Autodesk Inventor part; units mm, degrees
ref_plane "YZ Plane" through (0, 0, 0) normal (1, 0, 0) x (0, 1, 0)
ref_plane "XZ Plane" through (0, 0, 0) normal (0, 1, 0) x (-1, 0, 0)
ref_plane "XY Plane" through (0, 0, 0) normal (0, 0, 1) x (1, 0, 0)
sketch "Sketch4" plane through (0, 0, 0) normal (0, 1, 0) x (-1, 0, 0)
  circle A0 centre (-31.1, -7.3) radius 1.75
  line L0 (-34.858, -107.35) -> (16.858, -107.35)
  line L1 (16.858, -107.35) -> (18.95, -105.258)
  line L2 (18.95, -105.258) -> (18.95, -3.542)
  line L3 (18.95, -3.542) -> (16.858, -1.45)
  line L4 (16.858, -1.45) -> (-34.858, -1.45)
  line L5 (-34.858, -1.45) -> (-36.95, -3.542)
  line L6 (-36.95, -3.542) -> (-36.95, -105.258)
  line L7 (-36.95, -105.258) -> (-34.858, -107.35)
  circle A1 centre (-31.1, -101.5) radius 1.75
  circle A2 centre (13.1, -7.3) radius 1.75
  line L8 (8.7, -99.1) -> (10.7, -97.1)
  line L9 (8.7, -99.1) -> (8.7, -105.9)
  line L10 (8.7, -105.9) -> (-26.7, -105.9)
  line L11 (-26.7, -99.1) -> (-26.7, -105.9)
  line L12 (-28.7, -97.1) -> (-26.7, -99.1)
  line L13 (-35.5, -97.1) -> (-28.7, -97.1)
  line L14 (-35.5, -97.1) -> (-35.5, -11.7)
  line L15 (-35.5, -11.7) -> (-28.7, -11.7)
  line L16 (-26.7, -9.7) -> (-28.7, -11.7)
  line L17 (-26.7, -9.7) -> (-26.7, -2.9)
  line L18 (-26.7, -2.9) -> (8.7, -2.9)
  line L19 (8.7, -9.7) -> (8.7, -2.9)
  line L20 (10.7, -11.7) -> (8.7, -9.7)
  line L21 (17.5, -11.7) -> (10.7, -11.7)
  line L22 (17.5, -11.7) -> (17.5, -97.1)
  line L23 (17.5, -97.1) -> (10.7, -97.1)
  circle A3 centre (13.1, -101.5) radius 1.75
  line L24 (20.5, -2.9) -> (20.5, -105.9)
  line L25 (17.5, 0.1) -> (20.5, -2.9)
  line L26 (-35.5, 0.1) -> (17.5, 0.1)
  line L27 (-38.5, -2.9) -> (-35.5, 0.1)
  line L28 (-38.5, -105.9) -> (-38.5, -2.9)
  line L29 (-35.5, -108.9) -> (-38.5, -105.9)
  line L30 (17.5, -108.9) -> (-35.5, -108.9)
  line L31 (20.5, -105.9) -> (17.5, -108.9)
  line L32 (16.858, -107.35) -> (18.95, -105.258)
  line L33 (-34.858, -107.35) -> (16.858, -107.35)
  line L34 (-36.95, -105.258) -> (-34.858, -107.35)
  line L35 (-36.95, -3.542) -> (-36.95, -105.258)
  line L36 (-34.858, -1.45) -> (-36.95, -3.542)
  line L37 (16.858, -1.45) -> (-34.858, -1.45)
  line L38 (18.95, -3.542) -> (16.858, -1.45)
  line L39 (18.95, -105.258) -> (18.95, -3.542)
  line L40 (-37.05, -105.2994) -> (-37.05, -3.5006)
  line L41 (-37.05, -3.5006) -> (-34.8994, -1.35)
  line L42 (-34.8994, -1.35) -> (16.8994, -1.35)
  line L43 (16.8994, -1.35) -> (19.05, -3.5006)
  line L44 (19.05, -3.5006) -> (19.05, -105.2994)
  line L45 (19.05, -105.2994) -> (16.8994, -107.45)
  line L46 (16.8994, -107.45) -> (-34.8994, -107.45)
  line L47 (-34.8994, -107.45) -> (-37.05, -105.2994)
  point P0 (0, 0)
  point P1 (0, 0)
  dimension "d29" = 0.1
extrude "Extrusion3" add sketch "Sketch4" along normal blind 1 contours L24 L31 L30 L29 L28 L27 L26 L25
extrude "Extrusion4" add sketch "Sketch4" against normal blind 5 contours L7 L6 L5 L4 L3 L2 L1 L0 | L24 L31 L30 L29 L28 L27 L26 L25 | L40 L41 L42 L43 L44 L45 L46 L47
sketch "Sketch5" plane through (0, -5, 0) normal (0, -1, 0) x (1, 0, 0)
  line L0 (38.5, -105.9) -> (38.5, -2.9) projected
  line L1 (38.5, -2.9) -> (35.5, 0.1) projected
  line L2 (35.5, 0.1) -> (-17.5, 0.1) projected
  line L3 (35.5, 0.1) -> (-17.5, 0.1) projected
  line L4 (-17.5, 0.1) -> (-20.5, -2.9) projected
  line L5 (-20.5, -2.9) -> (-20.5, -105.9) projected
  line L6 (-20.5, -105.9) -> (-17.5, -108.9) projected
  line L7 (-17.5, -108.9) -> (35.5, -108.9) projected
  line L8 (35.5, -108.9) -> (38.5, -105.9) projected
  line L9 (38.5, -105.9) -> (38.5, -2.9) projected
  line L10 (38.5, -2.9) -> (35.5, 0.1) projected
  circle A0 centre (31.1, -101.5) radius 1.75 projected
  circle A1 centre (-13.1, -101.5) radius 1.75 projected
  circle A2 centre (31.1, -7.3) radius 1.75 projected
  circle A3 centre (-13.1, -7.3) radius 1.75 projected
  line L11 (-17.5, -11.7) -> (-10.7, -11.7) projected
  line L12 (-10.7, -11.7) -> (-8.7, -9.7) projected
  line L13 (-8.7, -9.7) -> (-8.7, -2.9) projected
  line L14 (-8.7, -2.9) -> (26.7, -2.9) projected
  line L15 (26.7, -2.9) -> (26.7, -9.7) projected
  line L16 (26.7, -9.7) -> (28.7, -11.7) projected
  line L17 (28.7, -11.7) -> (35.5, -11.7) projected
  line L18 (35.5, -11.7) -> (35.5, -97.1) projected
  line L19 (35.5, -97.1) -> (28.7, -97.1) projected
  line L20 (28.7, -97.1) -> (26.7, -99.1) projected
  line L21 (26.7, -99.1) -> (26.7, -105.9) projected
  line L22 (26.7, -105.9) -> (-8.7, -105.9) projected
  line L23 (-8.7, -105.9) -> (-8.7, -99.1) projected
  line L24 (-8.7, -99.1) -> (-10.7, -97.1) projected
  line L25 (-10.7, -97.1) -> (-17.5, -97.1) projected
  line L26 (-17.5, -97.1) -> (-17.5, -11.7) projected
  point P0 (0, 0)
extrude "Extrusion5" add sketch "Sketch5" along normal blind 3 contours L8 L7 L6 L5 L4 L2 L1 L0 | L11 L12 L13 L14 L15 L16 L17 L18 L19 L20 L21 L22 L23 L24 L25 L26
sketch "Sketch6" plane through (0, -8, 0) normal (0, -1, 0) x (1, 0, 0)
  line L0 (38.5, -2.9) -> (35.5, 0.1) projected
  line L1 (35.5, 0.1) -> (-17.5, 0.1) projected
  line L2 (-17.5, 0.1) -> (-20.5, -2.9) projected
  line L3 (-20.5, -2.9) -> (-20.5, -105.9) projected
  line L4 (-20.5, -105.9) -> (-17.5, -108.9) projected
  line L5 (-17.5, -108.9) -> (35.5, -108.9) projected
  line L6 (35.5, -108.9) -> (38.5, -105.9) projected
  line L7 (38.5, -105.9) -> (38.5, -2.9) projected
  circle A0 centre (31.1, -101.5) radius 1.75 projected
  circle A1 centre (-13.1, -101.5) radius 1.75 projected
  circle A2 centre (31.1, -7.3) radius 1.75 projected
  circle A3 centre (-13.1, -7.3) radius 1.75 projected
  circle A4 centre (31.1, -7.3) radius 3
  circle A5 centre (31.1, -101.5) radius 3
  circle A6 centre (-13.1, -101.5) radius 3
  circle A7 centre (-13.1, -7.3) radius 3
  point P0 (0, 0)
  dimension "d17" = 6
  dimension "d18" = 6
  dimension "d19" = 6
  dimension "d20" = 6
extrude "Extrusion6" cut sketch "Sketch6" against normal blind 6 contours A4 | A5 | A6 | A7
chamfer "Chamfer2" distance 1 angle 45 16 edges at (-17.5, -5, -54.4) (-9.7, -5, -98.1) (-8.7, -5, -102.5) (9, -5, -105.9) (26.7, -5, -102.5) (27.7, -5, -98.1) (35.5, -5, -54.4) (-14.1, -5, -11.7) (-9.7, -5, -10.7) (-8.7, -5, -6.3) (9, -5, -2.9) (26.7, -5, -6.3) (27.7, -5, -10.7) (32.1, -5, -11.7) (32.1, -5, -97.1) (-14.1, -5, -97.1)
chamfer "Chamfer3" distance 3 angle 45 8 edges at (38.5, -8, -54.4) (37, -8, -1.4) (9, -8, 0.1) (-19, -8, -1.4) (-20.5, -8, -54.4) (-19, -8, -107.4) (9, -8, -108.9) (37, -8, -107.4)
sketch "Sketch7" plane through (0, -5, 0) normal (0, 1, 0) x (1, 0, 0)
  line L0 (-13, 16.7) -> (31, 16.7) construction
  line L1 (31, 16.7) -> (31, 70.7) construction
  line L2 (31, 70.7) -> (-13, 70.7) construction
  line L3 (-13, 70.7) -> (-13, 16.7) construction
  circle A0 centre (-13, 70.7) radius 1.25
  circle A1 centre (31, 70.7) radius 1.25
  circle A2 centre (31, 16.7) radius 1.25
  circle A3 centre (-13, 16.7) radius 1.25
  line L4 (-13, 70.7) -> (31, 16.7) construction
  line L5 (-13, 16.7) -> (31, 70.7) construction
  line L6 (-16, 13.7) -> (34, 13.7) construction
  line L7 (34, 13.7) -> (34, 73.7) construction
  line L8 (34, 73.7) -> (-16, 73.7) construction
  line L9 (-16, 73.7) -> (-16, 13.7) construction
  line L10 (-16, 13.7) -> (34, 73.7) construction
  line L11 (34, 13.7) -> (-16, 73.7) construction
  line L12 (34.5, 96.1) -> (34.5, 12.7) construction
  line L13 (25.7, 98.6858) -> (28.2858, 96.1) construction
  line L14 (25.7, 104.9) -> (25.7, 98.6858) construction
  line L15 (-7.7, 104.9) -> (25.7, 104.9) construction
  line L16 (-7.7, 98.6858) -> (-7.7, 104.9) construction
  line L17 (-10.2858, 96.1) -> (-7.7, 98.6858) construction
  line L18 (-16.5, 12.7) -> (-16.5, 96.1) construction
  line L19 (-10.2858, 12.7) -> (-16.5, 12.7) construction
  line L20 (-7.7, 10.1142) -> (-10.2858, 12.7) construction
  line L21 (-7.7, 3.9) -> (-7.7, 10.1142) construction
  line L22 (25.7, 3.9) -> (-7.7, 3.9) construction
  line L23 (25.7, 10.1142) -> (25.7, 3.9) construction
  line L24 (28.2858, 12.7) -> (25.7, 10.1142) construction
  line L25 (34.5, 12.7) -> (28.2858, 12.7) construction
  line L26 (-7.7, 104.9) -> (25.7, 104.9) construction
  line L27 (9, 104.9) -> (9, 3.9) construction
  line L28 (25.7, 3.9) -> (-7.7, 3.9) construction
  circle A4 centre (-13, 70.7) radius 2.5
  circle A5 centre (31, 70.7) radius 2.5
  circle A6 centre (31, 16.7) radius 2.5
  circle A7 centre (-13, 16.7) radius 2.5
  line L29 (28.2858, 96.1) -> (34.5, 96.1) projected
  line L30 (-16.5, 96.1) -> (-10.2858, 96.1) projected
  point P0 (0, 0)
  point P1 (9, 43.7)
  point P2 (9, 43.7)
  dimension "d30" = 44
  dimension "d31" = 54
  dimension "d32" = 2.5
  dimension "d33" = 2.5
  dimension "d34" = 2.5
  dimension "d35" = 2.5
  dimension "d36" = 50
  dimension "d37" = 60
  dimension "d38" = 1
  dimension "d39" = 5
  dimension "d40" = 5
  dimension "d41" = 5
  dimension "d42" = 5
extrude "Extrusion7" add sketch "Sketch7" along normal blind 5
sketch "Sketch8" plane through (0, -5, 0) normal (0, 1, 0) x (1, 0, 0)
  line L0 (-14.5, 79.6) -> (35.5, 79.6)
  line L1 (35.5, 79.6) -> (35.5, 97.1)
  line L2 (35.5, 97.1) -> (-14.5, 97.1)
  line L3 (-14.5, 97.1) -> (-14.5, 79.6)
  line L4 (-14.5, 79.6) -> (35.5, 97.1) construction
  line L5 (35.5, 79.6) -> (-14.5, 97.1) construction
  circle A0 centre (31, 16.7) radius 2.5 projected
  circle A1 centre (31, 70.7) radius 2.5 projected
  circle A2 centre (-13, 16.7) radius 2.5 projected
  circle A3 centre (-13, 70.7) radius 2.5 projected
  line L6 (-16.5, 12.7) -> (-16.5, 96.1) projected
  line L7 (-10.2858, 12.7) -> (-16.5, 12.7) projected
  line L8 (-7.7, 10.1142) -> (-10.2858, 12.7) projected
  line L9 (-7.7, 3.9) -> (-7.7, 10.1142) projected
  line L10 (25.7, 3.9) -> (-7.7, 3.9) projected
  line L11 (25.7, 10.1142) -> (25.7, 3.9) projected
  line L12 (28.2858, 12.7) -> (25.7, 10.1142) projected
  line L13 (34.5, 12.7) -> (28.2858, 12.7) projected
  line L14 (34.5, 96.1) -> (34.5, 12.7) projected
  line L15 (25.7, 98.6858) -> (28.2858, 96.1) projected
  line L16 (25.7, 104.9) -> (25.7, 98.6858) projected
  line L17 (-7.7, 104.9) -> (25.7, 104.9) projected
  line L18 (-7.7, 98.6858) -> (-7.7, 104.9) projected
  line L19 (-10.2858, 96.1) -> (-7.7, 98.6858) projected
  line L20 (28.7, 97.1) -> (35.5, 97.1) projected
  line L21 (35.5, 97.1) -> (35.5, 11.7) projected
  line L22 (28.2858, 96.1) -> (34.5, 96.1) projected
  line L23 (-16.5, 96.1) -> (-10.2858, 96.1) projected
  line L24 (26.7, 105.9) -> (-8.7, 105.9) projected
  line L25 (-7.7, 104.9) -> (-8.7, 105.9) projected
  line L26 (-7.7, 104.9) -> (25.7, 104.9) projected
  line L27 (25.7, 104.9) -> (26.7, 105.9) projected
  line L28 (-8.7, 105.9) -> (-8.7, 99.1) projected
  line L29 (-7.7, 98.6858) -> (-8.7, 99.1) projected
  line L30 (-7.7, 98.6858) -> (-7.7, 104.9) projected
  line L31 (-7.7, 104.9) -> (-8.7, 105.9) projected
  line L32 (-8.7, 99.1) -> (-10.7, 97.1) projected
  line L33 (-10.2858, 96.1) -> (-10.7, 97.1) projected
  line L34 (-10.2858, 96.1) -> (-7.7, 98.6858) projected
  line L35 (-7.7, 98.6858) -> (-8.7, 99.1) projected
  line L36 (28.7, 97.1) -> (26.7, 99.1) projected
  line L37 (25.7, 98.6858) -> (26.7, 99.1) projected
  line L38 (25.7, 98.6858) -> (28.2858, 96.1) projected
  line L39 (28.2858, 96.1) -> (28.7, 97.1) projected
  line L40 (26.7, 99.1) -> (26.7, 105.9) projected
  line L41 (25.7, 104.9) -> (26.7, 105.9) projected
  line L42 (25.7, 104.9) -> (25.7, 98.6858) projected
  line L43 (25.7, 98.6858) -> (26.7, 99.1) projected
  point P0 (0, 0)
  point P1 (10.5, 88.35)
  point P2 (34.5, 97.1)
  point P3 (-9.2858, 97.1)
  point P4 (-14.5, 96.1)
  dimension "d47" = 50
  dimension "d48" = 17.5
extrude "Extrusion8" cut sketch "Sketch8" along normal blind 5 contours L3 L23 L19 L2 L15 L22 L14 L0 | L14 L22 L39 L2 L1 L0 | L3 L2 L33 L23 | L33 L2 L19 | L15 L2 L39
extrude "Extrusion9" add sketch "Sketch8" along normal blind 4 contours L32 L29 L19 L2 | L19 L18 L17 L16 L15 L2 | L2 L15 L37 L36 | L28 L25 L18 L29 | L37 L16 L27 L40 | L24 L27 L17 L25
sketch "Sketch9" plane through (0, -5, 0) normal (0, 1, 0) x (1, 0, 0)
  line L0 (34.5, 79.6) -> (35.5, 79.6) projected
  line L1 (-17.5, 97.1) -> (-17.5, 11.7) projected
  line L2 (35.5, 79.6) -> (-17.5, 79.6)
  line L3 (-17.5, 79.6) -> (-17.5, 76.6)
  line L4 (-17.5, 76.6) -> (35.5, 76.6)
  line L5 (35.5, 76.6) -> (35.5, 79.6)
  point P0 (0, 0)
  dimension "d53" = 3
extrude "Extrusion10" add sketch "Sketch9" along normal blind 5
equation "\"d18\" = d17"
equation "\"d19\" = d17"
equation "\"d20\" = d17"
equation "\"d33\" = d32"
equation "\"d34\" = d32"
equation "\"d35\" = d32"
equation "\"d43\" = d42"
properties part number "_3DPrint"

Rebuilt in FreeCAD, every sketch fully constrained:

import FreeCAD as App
import Part
import Sketcher
Q = App.Units.Quantity


def edges_at(feature, points):
    """Names of the edges that pass closest to the given points."""
    edges = feature.Shape.Edges
    near = lambda p: min(range(len(edges)), key=lambda i: edges[i].distToShape(Part.Vertex(*p))[0])
    return sorted({f"Edge{near(p) + 1}" for p in points})

doc = App.newDocument("Part")
body = doc.addObject("PartDesign::Body", "Body")

sketch1 = doc.addObject("Sketcher::SketchObject", "Sketch")
body.addObject(sketch1)
sketch1.AttachmentSupport = (doc.XZ_Plane, [""])
sketch1.MapMode = "FlatFace"
sketch1.addGeometry(Part.LineSegment(App.Vector(-20.5, -105.9, 0), App.Vector(-20.5, -2.9, 0)), False)
sketch1.addGeometry(Part.LineSegment(App.Vector(-20.5, -2.9, 0), App.Vector(-17.5, 0.1, 0)), False)
sketch1.addGeometry(Part.LineSegment(App.Vector(-17.5, 0.1, 0), App.Vector(35.5, 0.1, 0)), False)
sketch1.addGeometry(Part.LineSegment(App.Vector(35.5, 0.1, 0), App.Vector(38.5, -2.9, 0)), False)
sketch1.addGeometry(Part.LineSegment(App.Vector(38.5, -2.9, 0), App.Vector(38.5, -105.9, 0)), False)
sketch1.addGeometry(Part.LineSegment(App.Vector(38.5, -105.9, 0), App.Vector(35.5, -108.9, 0)), False)
sketch1.addGeometry(Part.LineSegment(App.Vector(35.5, -108.9, 0), App.Vector(-17.5, -108.9, 0)), False)
sketch1.addGeometry(Part.LineSegment(App.Vector(-17.5, -108.9, 0), App.Vector(-20.5, -105.9, 0)), False)
sketch1.addGeometry(Part.LineSegment(App.Vector(34.9, -107.5, 0), App.Vector(37, -105.3, 0)), False)
sketch1.addGeometry(Part.LineSegment(App.Vector(37, -105.3, 0), App.Vector(37, -3.5, 0)), False)
sketch1.addGeometry(Part.LineSegment(App.Vector(37, -3.5, 0), App.Vector(34.9, -1.4, 0)), False)
sketch1.addGeometry(Part.LineSegment(App.Vector(34.9, -1.4, 0), App.Vector(-16.9, -1.4, 0)), False)
sketch1.addGeometry(Part.LineSegment(App.Vector(-16.9, -1.4, 0), App.Vector(-19.1, -3.5, 0)), False)
sketch1.addGeometry(Part.LineSegment(App.Vector(-19.1, -3.5, 0), App.Vector(-19.1, -105.3, 0)), False)
sketch1.addGeometry(Part.LineSegment(App.Vector(-19.1, -105.3, 0), App.Vector(-16.9, -107.5, 0)), False)
sketch1.addGeometry(Part.LineSegment(App.Vector(-16.9, -107.5, 0), App.Vector(34.9, -107.5, 0)), False)
sketch1.addConstraint(Sketcher.Constraint("Coincident", 0, 2, 1, 1))
sketch1.addConstraint(Sketcher.Constraint("Coincident", 1, 2, 2, 1))
sketch1.addConstraint(Sketcher.Constraint("Coincident", 2, 2, 3, 1))
sketch1.addConstraint(Sketcher.Constraint("Coincident", 3, 2, 4, 1))
sketch1.addConstraint(Sketcher.Constraint("Coincident", 4, 2, 5, 1))
sketch1.addConstraint(Sketcher.Constraint("Coincident", 5, 2, 6, 1))
sketch1.addConstraint(Sketcher.Constraint("Coincident", 6, 2, 7, 1))
sketch1.addConstraint(Sketcher.Constraint("Coincident", 7, 2, 0, 1))
sketch1.addConstraint(Sketcher.Constraint("Coincident", 8, 2, 9, 1))
sketch1.addConstraint(Sketcher.Constraint("Coincident", 9, 2, 10, 1))
sketch1.addConstraint(Sketcher.Constraint("Coincident", 10, 2, 11, 1))
sketch1.addConstraint(Sketcher.Constraint("Coincident", 11, 2, 12, 1))
sketch1.addConstraint(Sketcher.Constraint("Coincident", 12, 2, 13, 1))
sketch1.addConstraint(Sketcher.Constraint("Coincident", 13, 2, 14, 1))
sketch1.addConstraint(Sketcher.Constraint("Coincident", 14, 2, 15, 1))
sketch1.addConstraint(Sketcher.Constraint("Coincident", 15, 2, 8, 1))
sketch1.addConstraint(Sketcher.Constraint("Vertical", 0))
sketch1.addConstraint(Sketcher.Constraint("Horizontal", 2))
sketch1.addConstraint(Sketcher.Constraint("Vertical", 4))
sketch1.addConstraint(Sketcher.Constraint("Horizontal", 6))
sketch1.addConstraint(Sketcher.Constraint("Vertical", 9))
sketch1.addConstraint(Sketcher.Constraint("Horizontal", 11))
sketch1.addConstraint(Sketcher.Constraint("Vertical", 13))
sketch1.addConstraint(Sketcher.Constraint("Horizontal", 15))
sketch1.addConstraint(Sketcher.Constraint("Perpendicular", 1, 3))
sketch1.addConstraint(Sketcher.Constraint("Perpendicular", 3, 5))
sketch1.addConstraint(Sketcher.Constraint("Perpendicular", 5, 7))
sketch1.addConstraint(Sketcher.Constraint("Perpendicular", 7, 8))
sketch1.addConstraint(Sketcher.Constraint("Perpendicular", 8, 10))
sketch1.addConstraint(Sketcher.Constraint("Perpendicular", 10, 12))
sketch1.addConstraint(Sketcher.Constraint("Perpendicular", 12, 14))
sketch1.addConstraint(Sketcher.Constraint("Horizontal", 0, 2, 3, 2))
sketch1.addConstraint(Sketcher.Constraint("Horizontal", 4, 2, 7, 2))
sketch1.addConstraint(Sketcher.Constraint("Horizontal", 9, 2, 12, 2))
sketch1.addConstraint(Sketcher.Constraint("Horizontal", 8, 2, 13, 2))
sketch1.addConstraint(Sketcher.Constraint("Vertical", 2, 2, 5, 2))
sketch1.addConstraint(Sketcher.Constraint("Vertical", 1, 2, 6, 2))
sketch1.addConstraint(Sketcher.Constraint("Vertical", 11, 2, 14, 2))
sketch1.addConstraint(Sketcher.Constraint("DistanceY", -1, 1, 1, 2, Q("0.1 mm")))
sketch1.addConstraint(Sketcher.Constraint("DistanceX", 2, 1, 2, 2, Q("53 mm")))
sketch1.addConstraint(Sketcher.Constraint("DistanceY", 0, 1, 0, 2, Q("103 mm")))
sketch1.addConstraint(Sketcher.Constraint("DistanceX", 0, 2, 1, 2, Q("3 mm")))
sketch1.addConstraint(Sketcher.Constraint("DistanceX", 0, 2, -1, 1, Q("20.5 mm")))
sketch1.addConstraint(Sketcher.Constraint("DistanceX", 13, 2, 8, 2, Q("56.1 mm")))
sketch1.addConstraint(Sketcher.Constraint("DistanceX", -1, 1, 8, 2, Q("37.05 mm")))
sketch1.addConstraint(Sketcher.Constraint("DistanceY", 10, 2, -1, 1, Q("1.35 mm")))
sketch1.addConstraint(Sketcher.Constraint("DistanceY", 14, 2, -1, 1, Q("107.45 mm")))
sketch1.addConstraint(Sketcher.Constraint("DistanceX", 11, 2, 11, 1, Q("51.7988 mm")))
pad1 = doc.addObject("PartDesign::Pad", "Pad")
body.addObject(pad1)
pad1.Profile = sketch1
pad1.Length = 1
pad1.Reversed = True

sketch2 = doc.addObject("Sketcher::SketchObject", "Sketch001")
body.addObject(sketch2)
sketch2.AttachmentSupport = (doc.XZ_Plane, [""])
sketch2.MapMode = "FlatFace"
sketch2.addGeometry(Part.LineSegment(App.Vector(-20.5, -105.9, 0), App.Vector(-20.5, -2.9, 0)), False)
sketch2.addGeometry(Part.LineSegment(App.Vector(-20.5, -2.9, 0), App.Vector(-17.5, 0.1, 0)), False)
sketch2.addGeometry(Part.LineSegment(App.Vector(-17.5, 0.1, 0), App.Vector(35.5, 0.1, 0)), False)
sketch2.addGeometry(Part.LineSegment(App.Vector(35.5, 0.1, 0), App.Vector(38.5, -2.9, 0)), False)
sketch2.addGeometry(Part.LineSegment(App.Vector(38.5, -2.9, 0), App.Vector(38.5, -105.9, 0)), False)
sketch2.addGeometry(Part.LineSegment(App.Vector(38.5, -105.9, 0), App.Vector(35.5, -108.9, 0)), False)
sketch2.addGeometry(Part.LineSegment(App.Vector(35.5, -108.9, 0), App.Vector(-17.5, -108.9, 0)), False)
sketch2.addGeometry(Part.LineSegment(App.Vector(-17.5, -108.9, 0), App.Vector(-20.5, -105.9, 0)), False)
sketch2.addGeometry(Part.Circle(App.Vector(31.1, -101.5, 0), App.Vector(0, 0, 1), 1.8), False)
sketch2.addGeometry(Part.Circle(App.Vector(-13.1, -101.5, 0), App.Vector(0, 0, 1), 1.8), False)
sketch2.addGeometry(Part.Circle(App.Vector(31.1, -7.3, 0), App.Vector(0, 0, 1), 1.8), False)
sketch2.addGeometry(Part.LineSegment(App.Vector(-10.7, -97.1, 0), App.Vector(-8.7, -99.1, 0)), False)
sketch2.addGeometry(Part.LineSegment(App.Vector(-8.7, -99.1, 0), App.Vector(-8.7, -105.9, 0)), False)
sketch2.addGeometry(Part.LineSegment(App.Vector(-8.7, -105.9, 0), App.Vector(26.7, -105.9, 0)), False)
sketch2.addGeometry(Part.LineSegment(App.Vector(26.7, -105.9, 0), App.Vector(26.7, -99.1, 0)), False)
sketch2.addGeometry(Part.LineSegment(App.Vector(26.7, -99.1, 0), App.Vector(28.7, -97.1, 0)), False)
sketch2.addGeometry(Part.LineSegment(App.Vector(28.7, -97.1, 0), App.Vector(35.5, -97.1, 0)), False)
sketch2.addGeometry(Part.LineSegment(App.Vector(35.5, -97.1, 0), App.Vector(35.5, -11.7, 0)), False)
sketch2.addGeometry(Part.LineSegment(App.Vector(35.5, -11.7, 0), App.Vector(28.7, -11.7, 0)), False)
sketch2.addGeometry(Part.LineSegment(App.Vector(28.7, -11.7, 0), App.Vector(26.7, -9.7, 0)), False)
sketch2.addGeometry(Part.LineSegment(App.Vector(26.7, -9.7, 0), App.Vector(26.7, -2.9, 0)), False)
sketch2.addGeometry(Part.LineSegment(App.Vector(26.7, -2.9, 0), App.Vector(-8.7, -2.9, 0)), False)
sketch2.addGeometry(Part.LineSegment(App.Vector(-8.7, -2.9, 0), App.Vector(-8.7, -9.7, 0)), False)
sketch2.addGeometry(Part.LineSegment(App.Vector(-8.7, -9.7, 0), App.Vector(-10.7, -11.7, 0)), False)
sketch2.addGeometry(Part.LineSegment(App.Vector(-10.7, -11.7, 0), App.Vector(-17.5, -11.7, 0)), False)
sketch2.addGeometry(Part.LineSegment(App.Vector(-17.5, -11.7, 0), App.Vector(-17.5, -97.1, 0)), False)
sketch2.addGeometry(Part.LineSegment(App.Vector(-17.5, -97.1, 0), App.Vector(-10.7, -97.1, 0)), False)
sketch2.addGeometry(Part.Circle(App.Vector(-13.1, -7.3, 0), App.Vector(0, 0, 1), 1.8), False)
sketch2.addConstraint(Sketcher.Constraint("Coincident", 0, 2, 1, 1))
sketch2.addConstraint(Sketcher.Constraint("Coincident", 1, 2, 2, 1))
sketch2.addConstraint(Sketcher.Constraint("Coincident", 2, 2, 3, 1))
sketch2.addConstraint(Sketcher.Constraint("Coincident", 3, 2, 4, 1))
sketch2.addConstraint(Sketcher.Constraint("Coincident", 4, 2, 5, 1))
sketch2.addConstraint(Sketcher.Constraint("Coincident", 5, 2, 6, 1))
sketch2.addConstraint(Sketcher.Constraint("Coincident", 6, 2, 7, 1))
sketch2.addConstraint(Sketcher.Constraint("Coincident", 7, 2, 0, 1))
sketch2.addConstraint(Sketcher.Constraint("Coincident", 11, 2, 12, 1))
sketch2.addConstraint(Sketcher.Constraint("Coincident", 12, 2, 13, 1))
sketch2.addConstraint(Sketcher.Constraint("Coincident", 13, 2, 14, 1))
sketch2.addConstraint(Sketcher.Constraint("Coincident", 14, 2, 15, 1))
sketch2.addConstraint(Sketcher.Constraint("Coincident", 15, 2, 16, 1))
sketch2.addConstraint(Sketcher.Constraint("Coincident", 16, 2, 17, 1))
sketch2.addConstraint(Sketcher.Constraint("Coincident", 17, 2, 18, 1))
sketch2.addConstraint(Sketcher.Constraint("Coincident", 18, 2, 19, 1))
sketch2.addConstraint(Sketcher.Constraint("Coincident", 19, 2, 20, 1))
sketch2.addConstraint(Sketcher.Constraint("Coincident", 20, 2, 21, 1))
sketch2.addConstraint(Sketcher.Constraint("Coincident", 21, 2, 22, 1))
sketch2.addConstraint(Sketcher.Constraint("Coincident", 22, 2, 23, 1))
sketch2.addConstraint(Sketcher.Constraint("Coincident", 23, 2, 24, 1))
sketch2.addConstraint(Sketcher.Constraint("Coincident", 24, 2, 25, 1))
sketch2.addConstraint(Sketcher.Constraint("Coincident", 25, 2, 26, 1))
sketch2.addConstraint(Sketcher.Constraint("Coincident", 26, 2, 11, 1))
sketch2.addConstraint(Sketcher.Constraint("Vertical", 0))
sketch2.addConstraint(Sketcher.Constraint("Horizontal", 2))
sketch2.addConstraint(Sketcher.Constraint("Vertical", 4))
sketch2.addConstraint(Sketcher.Constraint("Horizontal", 6))
sketch2.addConstraint(Sketcher.Constraint("Vertical", 12))
sketch2.addConstraint(Sketcher.Constraint("Horizontal", 13))
sketch2.addConstraint(Sketcher.Constraint("Vertical", 14))
sketch2.addConstraint(Sketcher.Constraint("Horizontal", 16))
sketch2.addConstraint(Sketcher.Constraint("Vertical", 17))
sketch2.addConstraint(Sketcher.Constraint("Horizontal", 18))
sketch2.addConstraint(Sketcher.Constraint("Vertical", 20))
sketch2.addConstraint(Sketcher.Constraint("Horizontal", 21))
sketch2.addConstraint(Sketcher.Constraint("Vertical", 22))
sketch2.addConstraint(Sketcher.Constraint("Horizontal", 24))
sketch2.addConstraint(Sketcher.Constraint("Vertical", 25))
sketch2.addConstraint(Sketcher.Constraint("Horizontal", 26))
sketch2.addConstraint(Sketcher.Constraint("Equal", 8, 9))
sketch2.addConstraint(Sketcher.Constraint("Equal", 9, 10))
sketch2.addConstraint(Sketcher.Constraint("Equal", 10, 27))
sketch2.addConstraint(Sketcher.Constraint("Perpendicular", 1, 3))
sketch2.addConstraint(Sketcher.Constraint("Perpendicular", 3, 5))
sketch2.addConstraint(Sketcher.Constraint("Perpendicular", 5, 7))
sketch2.addConstraint(Sketcher.Constraint("Parallel", 7, 11))
sketch2.addConstraint(Sketcher.Constraint("Perpendicular", 11, 15))
sketch2.addConstraint(Sketcher.Constraint("Perpendicular", 15, 19))
sketch2.addConstraint(Sketcher.Constraint("Perpendicular", 19, 23))
sketch2.addConstraint(Sketcher.Constraint("Horizontal", 8, 3, 9, 3))
sketch2.addConstraint(Sketcher.Constraint("Horizontal", 10, 3, 27, 3))
sketch2.addConstraint(Sketcher.Constraint("Horizontal", 0, 2, 3, 2))
sketch2.addConstraint(Sketcher.Constraint("Horizontal", 4, 2, 7, 2))
sketch2.addConstraint(Sketcher.Constraint("Horizontal", 7, 2, 12, 2))
sketch2.addConstraint(Sketcher.Constraint("Horizontal", 11, 2, 14, 2))
sketch2.addConstraint(Sketcher.Constraint("Horizontal", 3, 2, 20, 2))
sketch2.addConstraint(Sketcher.Constraint("Horizontal", 19, 2, 22, 2))
sketch2.addConstraint(Sketcher.Constraint("Horizontal", 18, 2, 23, 2))
sketch2.addConstraint(Sketcher.Constraint("Horizontal", 16, 2, 25, 2))
sketch2.addConstraint(Sketcher.Constraint("Vertical", 8, 3, 10, 3))
sketch2.addConstraint(Sketcher.Constraint("Vertical", 9, 3, 27, 3))
sketch2.addConstraint(Sketcher.Constraint("Vertical", 2, 2, 5, 2))
sketch2.addConstraint(Sketcher.Constraint("Vertical", 1, 2, 6, 2))
sketch2.addConstraint(Sketcher.Constraint("Vertical", 5, 2, 16, 2))
sketch2.addConstraint(Sketcher.Constraint("Vertical", 15, 2, 18, 2))
sketch2.addConstraint(Sketcher.Constraint("Vertical", 14, 2, 19, 2))
sketch2.addConstraint(Sketcher.Constraint("Vertical", 12, 2, 21, 2))
sketch2.addConstraint(Sketcher.Constraint("Vertical", 6, 2, 24, 2))
sketch2.addConstraint(Sketcher.Constraint("Equal", 18, 24))
sketch2.addConstraint(Sketcher.Constraint("Equal", 26, 12))
sketch2.addConstraint(Sketcher.Constraint("Equal", 14, 20))
sketch2.addConstraint(Sketcher.Constraint("Diameter", 8, Q("3.5 mm")))
sketch2.addConstraint(Sketcher.Constraint("DistanceY", -1, 1, 1, 2, Q("0.1 mm")))
sketch2.addConstraint(Sketcher.Constraint("DistanceX", 2, 1, 2, 2, Q("53 mm")))
sketch2.addConstraint(Sketcher.Constraint("DistanceY", 0, 1, 0, 2, Q("103 mm")))
sketch2.addConstraint(Sketcher.Constraint("DistanceX", 13, 1, 13, 2, Q("35.4 mm")))
sketch2.addConstraint(Sketcher.Constraint("DistanceX", 16, 1, 16, 2, Q("6.8 mm")))
sketch2.addConstraint(Sketcher.Constraint("DistanceX", 0, 2, 1, 2, Q("3 mm")))
sketch2.addConstraint(Sketcher.Constraint("DistanceX", -1, 1, 8, 3, Q("31.1 mm")))
sketch2.addConstraint(Sketcher.Constraint("DistanceY", 8, 3, -1, 1, Q("101.5 mm")))
sketch2.addConstraint(Sketcher.Constraint("DistanceX", 9, 3, -1, 1, Q("13.1 mm")))
sketch2.addConstraint(Sketcher.Constraint("DistanceY", 10, 3, -1, 1, Q("7.3 mm")))
sketch2.addConstraint(Sketcher.Constraint("DistanceX", 0, 2, -1, 1, Q("20.5 mm")))
pad2 = doc.addObject("PartDesign::Pad", "Pad001")
body.addObject(pad2)
pad2.Profile = sketch2
pad2.Length = 5

sketch3 = doc.addObject("Sketcher::SketchObject", "Sketch002")
body.addObject(sketch3)
sketch3.AttachmentSupport = (doc.XZ_Plane, [""])
sketch3.MapMode = "FlatFace"
sketch3.AttachmentOffset = App.Placement(App.Vector(0, 0, 5), App.Rotation())
sketch3.addGeometry(Part.LineSegment(App.Vector(35.5, -108.9, 0), App.Vector(38.5, -105.9, 0)), False)
sketch3.addGeometry(Part.LineSegment(App.Vector(38.5, -105.9, 0), App.Vector(38.5, -2.9, 0)), False)
sketch3.addGeometry(Part.LineSegment(App.Vector(38.5, -2.9, 0), App.Vector(35.5, 0.1, 0)), False)
sketch3.addGeometry(Part.LineSegment(App.Vector(35.5, 0.1, 0), App.Vector(-17.5, 0.1, 0)), False)
sketch3.addGeometry(Part.LineSegment(App.Vector(-17.5, 0.1, 0), App.Vector(-20.5, -2.9, 0)), False)
sketch3.addGeometry(Part.LineSegment(App.Vector(-20.5, -2.9, 0), App.Vector(-20.5, -105.9, 0)), False)
sketch3.addGeometry(Part.LineSegment(App.Vector(-20.5, -105.9, 0), App.Vector(-17.5, -108.9, 0)), False)
sketch3.addGeometry(Part.LineSegment(App.Vector(-17.5, -108.9, 0), App.Vector(35.5, -108.9, 0)), False)
sketch3.addGeometry(Part.Circle(App.Vector(-13.1, -101.5, 0), App.Vector(0, 0, 1), 1.8), False)
sketch3.addGeometry(Part.Circle(App.Vector(31.1, -101.5, 0), App.Vector(0, 0, 1), 1.8), False)
sketch3.addGeometry(Part.Circle(App.Vector(-13.1, -7.3, 0), App.Vector(0, 0, 1), 1.8), False)
sketch3.addGeometry(Part.Circle(App.Vector(31.1, -7.3, 0), App.Vector(0, 0, 1), 1.8), False)
sketch3.addConstraint(Sketcher.Constraint("Coincident", 0, 2, 1, 1))
sketch3.addConstraint(Sketcher.Constraint("Coincident", 1, 2, 2, 1))
sketch3.addConstraint(Sketcher.Constraint("Coincident", 2, 2, 3, 1))
sketch3.addConstraint(Sketcher.Constraint("Coincident", 3, 2, 4, 1))
sketch3.addConstraint(Sketcher.Constraint("Coincident", 4, 2, 5, 1))
sketch3.addConstraint(Sketcher.Constraint("Coincident", 5, 2, 6, 1))
sketch3.addConstraint(Sketcher.Constraint("Coincident", 6, 2, 7, 1))
sketch3.addConstraint(Sketcher.Constraint("Coincident", 7, 2, 0, 1))
sketch3.addConstraint(Sketcher.Constraint("Vertical", 1))
sketch3.addConstraint(Sketcher.Constraint("Horizontal", 3))
sketch3.addConstraint(Sketcher.Constraint("Vertical", 5))
sketch3.addConstraint(Sketcher.Constraint("Horizontal", 7))
sketch3.addConstraint(Sketcher.Constraint("Equal", 8, 9))
sketch3.addConstraint(Sketcher.Constraint("Equal", 9, 10))
sketch3.addConstraint(Sketcher.Constraint("Equal", 10, 11))
sketch3.addConstraint(Sketcher.Constraint("Perpendicular", 0, 2))
sketch3.addConstraint(Sketcher.Constraint("Perpendicular", 2, 4))
sketch3.addConstraint(Sketcher.Constraint("Perpendicular", 4, 6))
sketch3.addConstraint(Sketcher.Constraint("Horizontal", 8, 3, 9, 3))
sketch3.addConstraint(Sketcher.Constraint("Horizontal", 10, 3, 11, 3))
sketch3.addConstraint(Sketcher.Constraint("Horizontal", 1, 2, 4, 2))
sketch3.addConstraint(Sketcher.Constraint("Horizontal", 0, 2, 5, 2))
sketch3.addConstraint(Sketcher.Constraint("Vertical", 8, 3, 10, 3))
sketch3.addConstraint(Sketcher.Constraint("Vertical", 9, 3, 11, 3))
sketch3.addConstraint(Sketcher.Constraint("Vertical", 3, 2, 6, 2))
sketch3.addConstraint(Sketcher.Constraint("Vertical", 2, 2, 7, 2))
sketch3.addConstraint(Sketcher.Constraint("Diameter", 8, Q("3.5 mm")))
sketch3.addConstraint(Sketcher.Constraint("DistanceX", 3, 2, 3, 1, Q("53 mm")))
sketch3.addConstraint(Sketcher.Constraint("DistanceY", 1, 1, 1, 2, Q("103 mm")))
sketch3.addConstraint(Sketcher.Constraint("DistanceX", 2, 2, 1, 2, Q("3 mm")))
sketch3.addConstraint(Sketcher.Constraint("DistanceX", 8, 3, -1, 1, Q("13.1 mm")))
sketch3.addConstraint(Sketcher.Constraint("DistanceY", 8, 3, -1, 1, Q("101.5 mm")))
sketch3.addConstraint(Sketcher.Constraint("DistanceX", -1, 1, 9, 3, Q("31.1 mm")))
sketch3.addConstraint(Sketcher.Constraint("DistanceY", 10, 3, -1, 1, Q("7.3 mm")))
sketch3.addConstraint(Sketcher.Constraint("DistanceX", -1, 1, 0, 2, Q("38.5 mm")))
sketch3.addConstraint(Sketcher.Constraint("DistanceY", 0, 2, -1, 1, Q("105.9 mm")))
pad3 = doc.addObject("PartDesign::Pad", "Pad002")
body.addObject(pad3)
pad3.Profile = sketch3
pad3.Length = 3

sketch4 = doc.addObject("Sketcher::SketchObject", "Sketch003")
body.addObject(sketch4)
sketch4.AttachmentSupport = (doc.XZ_Plane, [""])
sketch4.MapMode = "FlatFace"
sketch4.AttachmentOffset = App.Placement(App.Vector(0, 0, 8), App.Rotation())
sketch4.addGeometry(Part.Circle(App.Vector(31.1, -7.3, 0), App.Vector(0, 0, 1), 3), False)
sketch4.addGeometry(Part.Circle(App.Vector(31.1, -7.3, 0), App.Vector(0, 0, 1), 1.8), False)
sketch4.addGeometry(Part.Circle(App.Vector(31.1, -101.5, 0), App.Vector(0, 0, 1), 3), False)
sketch4.addGeometry(Part.Circle(App.Vector(31.1, -101.5, 0), App.Vector(0, 0, 1), 1.8), False)
sketch4.addGeometry(Part.Circle(App.Vector(-13.1, -101.5, 0), App.Vector(0, 0, 1), 3), False)
sketch4.addGeometry(Part.Circle(App.Vector(-13.1, -101.5, 0), App.Vector(0, 0, 1), 1.8), False)
sketch4.addGeometry(Part.Circle(App.Vector(-13.1, -7.3, 0), App.Vector(0, 0, 1), 3), False)
sketch4.addGeometry(Part.Circle(App.Vector(-13.1, -7.3, 0), App.Vector(0, 0, 1), 1.8), False)
sketch4.addConstraint(Sketcher.Constraint("Coincident", 1, 3, 0, 3))
sketch4.addConstraint(Sketcher.Constraint("Coincident", 3, 3, 2, 3))
sketch4.addConstraint(Sketcher.Constraint("Coincident", 5, 3, 4, 3))
sketch4.addConstraint(Sketcher.Constraint("Coincident", 7, 3, 6, 3))
sketch4.addConstraint(Sketcher.Constraint("Equal", 0, 2))
sketch4.addConstraint(Sketcher.Constraint("Equal", 1, 3))
sketch4.addConstraint(Sketcher.Constraint("Equal", 2, 4))
sketch4.addConstraint(Sketcher.Constraint("Equal", 3, 5))
sketch4.addConstraint(Sketcher.Constraint("Equal", 4, 6))
sketch4.addConstraint(Sketcher.Constraint("Equal", 5, 7))
sketch4.addConstraint(Sketcher.Constraint("Horizontal", 3, 3, 4, 3))
sketch4.addConstraint(Sketcher.Constraint("Horizontal", 1, 3, 6, 3))
sketch4.addConstraint(Sketcher.Constraint("Vertical", 1, 3, 2, 3))
sketch4.addConstraint(Sketcher.Constraint("Vertical", 5, 3, 6, 3))
sketch4.addConstraint(Sketcher.Constraint("Diameter", 0, Q("6 mm")))
sketch4.addConstraint(Sketcher.Constraint("Diameter", 1, Q("3.5 mm")))
sketch4.addConstraint(Sketcher.Constraint("DistanceX", -1, 1, 0, 3, Q("31.1 mm")))
sketch4.addConstraint(Sketcher.Constraint("DistanceY", 0, 3, -1, 1, Q("7.3 mm")))
sketch4.addConstraint(Sketcher.Constraint("DistanceY", 2, 3, -1, 1, Q("101.5 mm")))
sketch4.addConstraint(Sketcher.Constraint("DistanceX", 4, 3, -1, 1, Q("13.1 mm")))
pocket1 = doc.addObject("PartDesign::Pocket", "Pocket")
body.addObject(pocket1)
pocket1.Profile = sketch4
pocket1.Length = 6
doc.recompute()

chamfer = doc.addObject("PartDesign::Chamfer", "Chamfer")
body.addObject(chamfer)
chamfer.Base = (pocket1, edges_at(pocket1, [
    (-17.5, -5, -54.4),
    (-9.7, -5, -98.1),
    (-8.7, -5, -102.5),
    (9, -5, -105.9),
    (26.7, -5, -102.5),
    (27.7, -5, -98.1),
    (35.5, -5, -54.4),
    (-14.1, -5, -11.7),
    (-9.7, -5, -10.7),
    (-8.7, -5, -6.3),
    (9, -5, -2.9),
    (26.7, -5, -6.3),
    (27.7, -5, -10.7),
    (32.1, -5, -11.7),
    (32.1, -5, -97.1),
    (-14.1, -5, -97.1),
]))
chamfer.Size = 1
doc.recompute()

chamfer2 = doc.addObject("PartDesign::Chamfer", "Chamfer001")
body.addObject(chamfer2)
chamfer2.Base = (chamfer, edges_at(chamfer, [
    (38.5, -8, -54.4),
    (37, -8, -1.4),
    (9, -8, 0.1),
    (-19, -8, -1.4),
    (-20.5, -8, -54.4),
    (-19, -8, -107.4),
    (9, -8, -108.9),
    (37, -8, -107.4),
]))
chamfer2.Size = 3

sketch5 = doc.addObject("Sketcher::SketchObject", "Sketch004")
body.addObject(sketch5)
sketch5.AttachmentSupport = (doc.XZ_Plane, [""])
sketch5.MapMode = "FlatFace"
sketch5.AttachmentOffset = App.Placement(App.Vector(0, 0, 5), App.Rotation())
sketch5.addGeometry(Part.Circle(App.Vector(-13, -70.7, 0), App.Vector(0, 0, 1), 2.5), False)
sketch5.addGeometry(Part.Circle(App.Vector(-13, -70.7, 0), App.Vector(0, 0, 1), 1.2), False)
sketch5.addGeometry(Part.Circle(App.Vector(31, -70.7, 0), App.Vector(0, 0, 1), 2.5), False)
sketch5.addGeometry(Part.Circle(App.Vector(31, -70.7, 0), App.Vector(0, 0, 1), 1.2), False)
sketch5.addGeometry(Part.Circle(App.Vector(31, -16.7, 0), App.Vector(0, 0, 1), 2.5), False)
sketch5.addGeometry(Part.Circle(App.Vector(31, -16.7, 0), App.Vector(0, 0, 1), 1.2), False)
sketch5.addGeometry(Part.Circle(App.Vector(-13, -16.7, 0), App.Vector(0, 0, 1), 2.5), False)
sketch5.addGeometry(Part.Circle(App.Vector(-13, -16.7, 0), App.Vector(0, 0, 1), 1.2), False)
sketch5.addConstraint(Sketcher.Constraint("Coincident", 1, 3, 0, 3))
sketch5.addConstraint(Sketcher.Constraint("Coincident", 3, 3, 2, 3))
sketch5.addConstraint(Sketcher.Constraint("Coincident", 5, 3, 4, 3))
sketch5.addConstraint(Sketcher.Constraint("Coincident", 7, 3, 6, 3))
sketch5.addConstraint(Sketcher.Constraint("Equal", 0, 2))
sketch5.addConstraint(Sketcher.Constraint("Equal", 1, 3))
sketch5.addConstraint(Sketcher.Constraint("Equal", 2, 4))
sketch5.addConstraint(Sketcher.Constraint("Equal", 3, 5))
sketch5.addConstraint(Sketcher.Constraint("Equal", 4, 6))
sketch5.addConstraint(Sketcher.Constraint("Equal", 5, 7))
sketch5.addConstraint(Sketcher.Constraint("Horizontal", 1, 3, 2, 3))
sketch5.addConstraint(Sketcher.Constraint("Horizontal", 5, 3, 6, 3))
sketch5.addConstraint(Sketcher.Constraint("Vertical", 3, 3, 4, 3))
sketch5.addConstraint(Sketcher.Constraint("Vertical", 1, 3, 6, 3))
sketch5.addConstraint(Sketcher.Constraint("Diameter", 0, Q("5 mm")))
sketch5.addConstraint(Sketcher.Constraint("Diameter", 1, Q("2.5 mm")))
sketch5.addConstraint(Sketcher.Constraint("DistanceX", 0, 3, 2, 3, Q("44 mm")))
sketch5.addConstraint(Sketcher.Constraint("DistanceY", 2, 3, 4, 3, Q("54 mm")))
sketch5.addConstraint(Sketcher.Constraint("DistanceX", 0, 3, -1, 1, Q("13 mm")))
sketch5.addConstraint(Sketcher.Constraint("DistanceY", 0, 3, -1, 1, Q("70.7 mm")))
pad4 = doc.addObject("PartDesign::Pad", "Pad003")
body.addObject(pad4)
pad4.Profile = sketch5
pad4.Length = 5
pad4.Reversed = True

sketch6 = doc.addObject("Sketcher::SketchObject", "Sketch005")
body.addObject(sketch6)
sketch6.AttachmentSupport = (doc.XZ_Plane, [""])
sketch6.MapMode = "FlatFace"
sketch6.AttachmentOffset = App.Placement(App.Vector(0, 0, 5), App.Rotation())
sketch6.addGeometry(Part.LineSegment(App.Vector(-14, -80, 0), App.Vector(36, -80, 0)), False)
sketch6.addGeometry(Part.LineSegment(App.Vector(36, -80, 0), App.Vector(36, -97, 0)), False)
sketch6.addGeometry(Part.LineSegment(App.Vector(36, -97, 0), App.Vector(-14, -97, 0)), False)
sketch6.addGeometry(Part.LineSegment(App.Vector(-14, -97, 0), App.Vector(-14, -80, 0)), False)
sketch6.addConstraint(Sketcher.Constraint("Coincident", 0, 2, 1, 1))
sketch6.addConstraint(Sketcher.Constraint("Coincident", 1, 2, 2, 1))
sketch6.addConstraint(Sketcher.Constraint("Coincident", 2, 2, 3, 1))
sketch6.addConstraint(Sketcher.Constraint("Coincident", 3, 2, 0, 1))
sketch6.addConstraint(Sketcher.Constraint("Horizontal", 0))
sketch6.addConstraint(Sketcher.Constraint("Vertical", 1))
sketch6.addConstraint(Sketcher.Constraint("Horizontal", 2))
sketch6.addConstraint(Sketcher.Constraint("Vertical", 3))
sketch6.addConstraint(Sketcher.Constraint("DistanceX", 0, 1, 0, 2, Q("50 mm")))
sketch6.addConstraint(Sketcher.Constraint("DistanceY", 1, 2, 1, 1, Q("17.5 mm")))
sketch6.addConstraint(Sketcher.Constraint("DistanceX", -1, 1, 0, 2, Q("35.5 mm")))
sketch6.addConstraint(Sketcher.Constraint("DistanceY", 0, 2, -1, 1, Q("79.6 mm")))
pocket2 = doc.addObject("PartDesign::Pocket", "Pocket001")
body.addObject(pocket2)
pocket2.Profile = sketch6
pocket2.Length = 5

sketch7 = doc.addObject("Sketcher::SketchObject", "Sketch006")
body.addObject(sketch7)
sketch7.AttachmentSupport = (doc.XZ_Plane, [""])
sketch7.MapMode = "FlatFace"
sketch7.AttachmentOffset = App.Placement(App.Vector(0, 0, 5), App.Rotation())
sketch7.addGeometry(Part.LineSegment(App.Vector(-8.7, -99.1, 0), App.Vector(-10.7, -97.1, 0)), False)
sketch7.addGeometry(Part.LineSegment(App.Vector(-10.7, -97.1, 0), App.Vector(28.7, -97.1, 0)), False)
sketch7.addGeometry(Part.LineSegment(App.Vector(28.7, -97.1, 0), App.Vector(26.7, -99.1, 0)), False)
sketch7.addGeometry(Part.LineSegment(App.Vector(26.7, -99.1, 0), App.Vector(26.7, -105.9, 0)), False)
sketch7.addGeometry(Part.LineSegment(App.Vector(26.7, -105.9, 0), App.Vector(-8.7, -105.9, 0)), False)
sketch7.addGeometry(Part.LineSegment(App.Vector(-8.7, -105.9, 0), App.Vector(-8.7, -99.1, 0)), False)
sketch7.addConstraint(Sketcher.Constraint("Coincident", 0, 2, 1, 1))
sketch7.addConstraint(Sketcher.Constraint("Coincident", 1, 2, 2, 1))
sketch7.addConstraint(Sketcher.Constraint("Coincident", 2, 2, 3, 1))
sketch7.addConstraint(Sketcher.Constraint("Coincident", 3, 2, 4, 1))
sketch7.addConstraint(Sketcher.Constraint("Coincident", 4, 2, 5, 1))
sketch7.addConstraint(Sketcher.Constraint("Coincident", 5, 2, 0, 1))
sketch7.addConstraint(Sketcher.Constraint("Horizontal", 1))
sketch7.addConstraint(Sketcher.Constraint("Vertical", 3))
sketch7.addConstraint(Sketcher.Constraint("Horizontal", 4))
sketch7.addConstraint(Sketcher.Constraint("Vertical", 5))
sketch7.addConstraint(Sketcher.Constraint("Perpendicular", 0, 2))
sketch7.addConstraint(Sketcher.Constraint("Horizontal", 2, 2, 5, 2))
sketch7.addConstraint(Sketcher.Constraint("Equal", 0, 2))
sketch7.addConstraint(Sketcher.Constraint("DistanceX", 1, 1, 1, 2, Q("39.4 mm")))
sketch7.addConstraint(Sketcher.Constraint("DistanceX", 4, 2, 4, 1, Q("35.4 mm")))
sketch7.addConstraint(Sketcher.Constraint("DistanceY", 3, 2, 3, 1, Q("6.8 mm")))
sketch7.addConstraint(Sketcher.Constraint("DistanceX", 0, 2, -1, 1, Q("10.7 mm")))
sketch7.addConstraint(Sketcher.Constraint("DistanceY", 0, 2, -1, 1, Q("97.1 mm")))
pad5 = doc.addObject("PartDesign::Pad", "Pad004")
body.addObject(pad5)
pad5.Profile = sketch7
pad5.Length = 4
pad5.Reversed = True

sketch8 = doc.addObject("Sketcher::SketchObject", "Sketch007")
body.addObject(sketch8)
sketch8.AttachmentSupport = (doc.XZ_Plane, [""])
sketch8.MapMode = "FlatFace"
sketch8.AttachmentOffset = App.Placement(App.Vector(0, 0, 5), App.Rotation())
sketch8.addGeometry(Part.LineSegment(App.Vector(35.5, -79.6, 0), App.Vector(-17.5, -79.6, 0)), False)
sketch8.addGeometry(Part.LineSegment(App.Vector(-17.5, -79.6, 0), App.Vector(-17.5, -76.6, 0)), False)
sketch8.addGeometry(Part.LineSegment(App.Vector(-17.5, -76.6, 0), App.Vector(35.5, -76.6, 0)), False)
sketch8.addGeometry(Part.LineSegment(App.Vector(35.5, -76.6, 0), App.Vector(35.5, -79.6, 0)), False)
sketch8.addConstraint(Sketcher.Constraint("Coincident", 0, 2, 1, 1))
sketch8.addConstraint(Sketcher.Constraint("Coincident", 1, 2, 2, 1))
sketch8.addConstraint(Sketcher.Constraint("Coincident", 2, 2, 3, 1))
sketch8.addConstraint(Sketcher.Constraint("Coincident", 3, 2, 0, 1))
sketch8.addConstraint(Sketcher.Constraint("Horizontal", 0))
sketch8.addConstraint(Sketcher.Constraint("Vertical", 1))
sketch8.addConstraint(Sketcher.Constraint("Horizontal", 2))
sketch8.addConstraint(Sketcher.Constraint("Vertical", 3))
sketch8.addConstraint(Sketcher.Constraint("DistanceY", 1, 1, 1, 2, Q("3 mm")))
sketch8.addConstraint(Sketcher.Constraint("DistanceX", 0, 2, 0, 1, Q("53 mm")))
sketch8.addConstraint(Sketcher.Constraint("DistanceX", 0, 2, -1, 1, Q("17.5 mm")))
sketch8.addConstraint(Sketcher.Constraint("DistanceY", 0, 2, -1, 1, Q("79.6 mm")))
pad6 = doc.addObject("PartDesign::Pad", "Pad005")
body.addObject(pad6)
pad6.Profile = sketch8
pad6.Length = 5
pad6.Reversed = True

doc.recompute()
